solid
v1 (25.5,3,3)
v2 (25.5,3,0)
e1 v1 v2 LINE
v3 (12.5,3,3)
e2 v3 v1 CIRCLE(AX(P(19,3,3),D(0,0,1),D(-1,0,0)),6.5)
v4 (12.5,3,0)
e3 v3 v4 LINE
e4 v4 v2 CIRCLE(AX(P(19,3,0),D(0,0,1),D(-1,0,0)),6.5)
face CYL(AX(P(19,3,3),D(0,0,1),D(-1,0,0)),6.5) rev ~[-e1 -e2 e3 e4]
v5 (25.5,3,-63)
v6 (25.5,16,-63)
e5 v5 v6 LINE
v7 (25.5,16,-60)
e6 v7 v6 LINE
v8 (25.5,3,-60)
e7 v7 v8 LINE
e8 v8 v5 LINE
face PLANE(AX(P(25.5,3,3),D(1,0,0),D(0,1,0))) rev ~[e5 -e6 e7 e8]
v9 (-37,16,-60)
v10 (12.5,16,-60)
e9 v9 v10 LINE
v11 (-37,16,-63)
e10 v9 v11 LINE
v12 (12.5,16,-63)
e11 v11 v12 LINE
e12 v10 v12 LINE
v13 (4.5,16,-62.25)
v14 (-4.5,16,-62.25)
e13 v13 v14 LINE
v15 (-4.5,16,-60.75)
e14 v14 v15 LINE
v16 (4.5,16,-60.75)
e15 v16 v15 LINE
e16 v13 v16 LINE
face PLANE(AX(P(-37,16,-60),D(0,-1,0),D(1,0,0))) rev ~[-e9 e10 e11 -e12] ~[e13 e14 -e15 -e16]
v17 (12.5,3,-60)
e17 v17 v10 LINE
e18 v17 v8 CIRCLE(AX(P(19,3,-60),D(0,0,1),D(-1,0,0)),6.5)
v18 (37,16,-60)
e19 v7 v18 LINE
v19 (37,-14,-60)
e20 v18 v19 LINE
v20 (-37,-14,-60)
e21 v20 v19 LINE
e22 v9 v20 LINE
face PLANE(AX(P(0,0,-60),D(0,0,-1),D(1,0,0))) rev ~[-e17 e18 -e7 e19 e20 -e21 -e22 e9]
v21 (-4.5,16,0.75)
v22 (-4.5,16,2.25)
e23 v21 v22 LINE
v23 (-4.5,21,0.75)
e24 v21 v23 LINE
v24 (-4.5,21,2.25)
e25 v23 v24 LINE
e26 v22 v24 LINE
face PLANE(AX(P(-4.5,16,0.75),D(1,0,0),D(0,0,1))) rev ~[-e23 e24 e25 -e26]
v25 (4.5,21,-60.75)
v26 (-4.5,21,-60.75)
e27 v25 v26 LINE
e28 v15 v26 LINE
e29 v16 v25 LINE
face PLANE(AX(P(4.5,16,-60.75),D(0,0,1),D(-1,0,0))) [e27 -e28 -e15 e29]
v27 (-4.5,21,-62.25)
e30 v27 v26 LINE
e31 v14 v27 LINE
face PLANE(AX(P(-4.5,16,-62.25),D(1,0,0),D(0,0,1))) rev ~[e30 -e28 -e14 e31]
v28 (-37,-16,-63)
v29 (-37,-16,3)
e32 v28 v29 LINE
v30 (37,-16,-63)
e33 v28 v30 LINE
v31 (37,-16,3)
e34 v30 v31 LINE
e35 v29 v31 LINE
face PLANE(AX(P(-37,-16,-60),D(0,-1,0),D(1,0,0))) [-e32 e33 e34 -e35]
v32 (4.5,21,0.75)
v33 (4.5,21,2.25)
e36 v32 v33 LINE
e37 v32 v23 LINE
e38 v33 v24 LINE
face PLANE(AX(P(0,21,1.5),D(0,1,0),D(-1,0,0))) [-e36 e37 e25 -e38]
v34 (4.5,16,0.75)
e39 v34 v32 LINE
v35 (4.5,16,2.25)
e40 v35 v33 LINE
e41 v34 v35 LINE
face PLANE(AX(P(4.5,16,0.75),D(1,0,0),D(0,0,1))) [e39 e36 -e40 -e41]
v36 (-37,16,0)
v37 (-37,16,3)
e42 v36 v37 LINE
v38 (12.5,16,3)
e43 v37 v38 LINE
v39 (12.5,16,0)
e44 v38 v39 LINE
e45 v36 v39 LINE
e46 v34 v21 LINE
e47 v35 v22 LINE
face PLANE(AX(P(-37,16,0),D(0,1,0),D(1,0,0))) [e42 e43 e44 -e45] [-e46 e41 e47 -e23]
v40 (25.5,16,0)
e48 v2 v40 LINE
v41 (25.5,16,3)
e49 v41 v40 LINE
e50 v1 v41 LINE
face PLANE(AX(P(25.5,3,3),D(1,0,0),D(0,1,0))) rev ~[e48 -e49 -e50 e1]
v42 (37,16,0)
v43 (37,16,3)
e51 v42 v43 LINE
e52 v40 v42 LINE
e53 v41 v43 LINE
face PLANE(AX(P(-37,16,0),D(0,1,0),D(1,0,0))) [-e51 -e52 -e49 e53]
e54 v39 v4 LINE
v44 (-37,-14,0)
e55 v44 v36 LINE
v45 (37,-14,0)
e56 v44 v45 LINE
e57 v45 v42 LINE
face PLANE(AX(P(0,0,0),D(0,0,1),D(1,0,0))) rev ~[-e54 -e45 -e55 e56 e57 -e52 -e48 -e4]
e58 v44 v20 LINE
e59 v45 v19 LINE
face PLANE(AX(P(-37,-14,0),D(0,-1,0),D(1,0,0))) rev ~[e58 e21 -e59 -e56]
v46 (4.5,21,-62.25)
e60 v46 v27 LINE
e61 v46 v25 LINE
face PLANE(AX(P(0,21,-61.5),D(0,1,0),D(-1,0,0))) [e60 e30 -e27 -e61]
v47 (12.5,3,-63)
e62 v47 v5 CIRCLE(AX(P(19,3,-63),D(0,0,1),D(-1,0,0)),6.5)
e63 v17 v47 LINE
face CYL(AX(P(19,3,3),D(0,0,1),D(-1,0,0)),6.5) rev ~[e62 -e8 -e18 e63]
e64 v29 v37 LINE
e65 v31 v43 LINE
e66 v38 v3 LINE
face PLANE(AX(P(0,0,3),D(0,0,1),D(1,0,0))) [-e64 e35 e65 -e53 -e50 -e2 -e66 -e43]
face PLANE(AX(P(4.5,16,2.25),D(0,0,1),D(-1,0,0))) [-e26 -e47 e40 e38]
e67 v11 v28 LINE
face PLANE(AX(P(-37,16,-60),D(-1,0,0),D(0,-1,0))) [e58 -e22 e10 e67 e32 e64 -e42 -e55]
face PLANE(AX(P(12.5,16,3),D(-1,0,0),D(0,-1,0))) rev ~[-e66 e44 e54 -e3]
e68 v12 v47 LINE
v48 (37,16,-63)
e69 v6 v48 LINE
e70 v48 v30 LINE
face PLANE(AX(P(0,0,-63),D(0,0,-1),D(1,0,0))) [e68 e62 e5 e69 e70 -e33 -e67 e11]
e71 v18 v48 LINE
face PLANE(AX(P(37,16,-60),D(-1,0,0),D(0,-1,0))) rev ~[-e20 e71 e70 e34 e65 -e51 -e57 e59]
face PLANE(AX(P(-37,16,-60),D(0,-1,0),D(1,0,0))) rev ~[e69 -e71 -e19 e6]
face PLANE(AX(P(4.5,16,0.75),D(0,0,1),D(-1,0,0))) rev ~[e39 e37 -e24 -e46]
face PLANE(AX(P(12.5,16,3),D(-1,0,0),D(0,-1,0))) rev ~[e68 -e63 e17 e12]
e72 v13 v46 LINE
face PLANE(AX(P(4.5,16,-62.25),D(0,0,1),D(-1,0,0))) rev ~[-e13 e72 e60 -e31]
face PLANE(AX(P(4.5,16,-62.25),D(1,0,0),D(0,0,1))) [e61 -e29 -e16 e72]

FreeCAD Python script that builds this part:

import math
import FreeCAD as App
import Part
import Sketcher

V = App.Vector
Q = App.Units.Quantity


def add_polygon(sketch, points):
    """Adds a closed chain of lines whose ends are joined by coincident constraints."""
    first, n = sketch.GeometryCount, len(points)
    for a, b in zip(points, points[1:] + points[:1]):
        sketch.addGeometry(Part.LineSegment(App.Vector(*a, 0), App.Vector(*b, 0)), False)
    for i in range(n):
        sketch.addConstraint(Sketcher.Constraint("Coincident", first + i, 2, first + (i + 1) % n, 1))

doc = App.newDocument("Part")
params = doc.addObject("Spreadsheet::Sheet", "Params")
for row, (alias, value) in enumerate([
    ("sketch1_width", "74 mm"),
    ("sketch1_height", "32 mm"),
    ("pad1_length", "3 mm"),
    ("sketch2_width", "74 mm"),
    ("sketch2_height", "2 mm"),
    ("pad2_length", "60 mm"),
    ("sketch3_width", "74 mm"),
    ("sketch3_height", "32 mm"),
    ("pad3_length", "3 mm"),
    ("sketch4_width", "9 mm"),
    ("sketch4_height", "1.5 mm"),
    ("pad4_length", "5 mm"),
    ("sketch5_width", "9 mm"),
    ("sketch5_height", "1.5 mm"),
    ("pad5_length", "5 mm"),
    ("sketch6_radius", "6.5 mm"),
], start=1):
    params.set(f"A{row}", alias)
    params.set(f"B{row}", "=" + value)
    params.setAlias(f"B{row}", alias)

body = doc.addObject("PartDesign::Body", "Body")

# Sketch on XY plane
sketch1 = body.newObject("Sketcher::SketchObject", "Sketch")
sketch1.AttachmentSupport = (doc.getObject("XY_Plane"), [""])
sketch1.MapMode = "FlatFace"
add_polygon(sketch1, [(-37, 16), (-37, -16), (37, -16), (37, 16)])  # lines 0-3
sketch1.addConstraint([
    Sketcher.Constraint("Vertical", 0),
    Sketcher.Constraint("Horizontal", 1),
    Sketcher.Constraint("Vertical", 2),
    Sketcher.Constraint("Horizontal", 3),
    Sketcher.Constraint("Symmetric", 0, 2, 2, 2, -1, 1),
    Sketcher.Constraint("DistanceX", 1, 1, 1, 2, Q("74 mm")),
    Sketcher.Constraint("DistanceY", 0, 2, 0, 1, Q("32 mm")),
])
sketch1.setExpression("Constraints[9]", "Params.sketch1_width")
sketch1.setExpression("Constraints[10]", "Params.sketch1_height")
pad1 = body.newObject("PartDesign::Pad", "Pad")
pad1.Profile = sketch1
pad1.setExpression("Length", "Params.pad1_length")

# Sketch on XY plane
sketch2 = body.newObject("Sketcher::SketchObject", "Sketch001")
sketch2.AttachmentSupport = (doc.getObject("XY_Plane"), [""])
sketch2.MapMode = "FlatFace"
add_polygon(sketch2, [(-37, -16), (-37, -14), (37, -14), (37, -16)])  # lines 0-3
sketch2.addConstraint([
    Sketcher.Constraint("Vertical", 0),
    Sketcher.Constraint("Horizontal", 1),
    Sketcher.Constraint("Vertical", 2),
    Sketcher.Constraint("Horizontal", 3),
    Sketcher.Constraint("DistanceX", 1, 1, 1, 2, Q("74 mm")),
    Sketcher.Constraint("DistanceY", 0, 1, 0, 2, Q("2 mm")),
    Sketcher.Constraint("DistanceX", 0, 2, -1, 1, Q("37 mm")),
    Sketcher.Constraint("DistanceY", 0, 2, -1, 1, Q("14 mm")),
])
sketch2.setExpression("Constraints[8]", "Params.sketch2_width")
sketch2.setExpression("Constraints[9]", "Params.sketch2_height")
pad2 = body.newObject("PartDesign::Pad", "Pad001")
pad2.Profile = sketch2
pad2.setExpression("Length", "Params.pad2_length")
pad2.Reversed = True

# Sketch on XY plane
sketch3 = body.newObject("Sketcher::SketchObject", "Sketch002")
sketch3.AttachmentSupport = (doc.getObject("XY_Plane"), [""])
sketch3.MapMode = "FlatFace"
sketch3.AttachmentOffset = App.Placement(V(0, 0, -60), App.Rotation())
add_polygon(sketch3, [(-37, -16), (-37, 16), (37, 16), (37, -16)])  # lines 0-3
sketch3.addConstraint([
    Sketcher.Constraint("Vertical", 0),
    Sketcher.Constraint("Horizontal", 1),
    Sketcher.Constraint("Vertical", 2),
    Sketcher.Constraint("Horizontal", 3),
    Sketcher.Constraint("Symmetric", 0, 2, 2, 2, -1, 1),
    Sketcher.Constraint("DistanceX", 1, 1, 1, 2, Q("74 mm")),
    Sketcher.Constraint("DistanceY", 0, 1, 0, 2, Q("32 mm")),
])
sketch3.setExpression("Constraints[9]", "Params.sketch3_width")
sketch3.setExpression("Constraints[10]", "Params.sketch3_height")
pad3 = body.newObject("PartDesign::Pad", "Pad002")
pad3.Profile = sketch3
pad3.setExpression("Length", "Params.pad3_length")
pad3.Reversed = True

# Sketch on XZ plane
sketch4 = body.newObject("Sketcher::SketchObject", "Sketch003")
sketch4.AttachmentSupport = (doc.getObject("XZ_Plane"), [""])
sketch4.MapMode = "FlatFace"
sketch4.AttachmentOffset = App.Placement(V(0, 0, -16), App.Rotation())
add_polygon(sketch4, [(4.5, 2.25), (4.5, 0.75), (-4.5, 0.75), (-4.5, 2.25)])  # lines 0-3
sketch4.addConstraint([
    Sketcher.Constraint("Vertical", 0),
    Sketcher.Constraint("Horizontal", 1),
    Sketcher.Constraint("Vertical", 2),
    Sketcher.Constraint("Horizontal", 3),
    Sketcher.Constraint("DistanceX", 1, 2, 1, 1, Q("9 mm")),
    Sketcher.Constraint("DistanceY", 0, 2, 0, 1, Q("1.5 mm")),
    Sketcher.Constraint("DistanceX", -1, 1, 0, 2, Q("4.5 mm")),
    Sketcher.Constraint("DistanceY", -1, 1, 0, 2, Q("0.75 mm")),
])
sketch4.setExpression("Constraints[8]", "Params.sketch4_width")
sketch4.setExpression("Constraints[9]", "Params.sketch4_height")
pad4 = body.newObject("PartDesign::Pad", "Pad003")
pad4.Profile = sketch4
pad4.setExpression("Length", "Params.pad4_length")
pad4.Reversed = True

# Sketch on XZ plane
sketch5 = body.newObject("Sketcher::SketchObject", "Sketch004")
sketch5.AttachmentSupport = (doc.getObject("XZ_Plane"), [""])
sketch5.MapMode = "FlatFace"
sketch5.AttachmentOffset = App.Placement(V(0, 0, -16), App.Rotation())
add_polygon(sketch5, [(4.5, -60.75), (4.5, -62.25), (-4.5, -62.25), (-4.5, -60.75)])  # lines 0-3
sketch5.addConstraint([
    Sketcher.Constraint("Vertical", 0),
    Sketcher.Constraint("Horizontal", 1),
    Sketcher.Constraint("Vertical", 2),
    Sketcher.Constraint("Horizontal", 3),
    Sketcher.Constraint("DistanceX", 1, 2, 1, 1, Q("9 mm")),
    Sketcher.Constraint("DistanceY", 0, 2, 0, 1, Q("1.5 mm")),
    Sketcher.Constraint("DistanceX", -1, 1, 0, 2, Q("4.5 mm")),
    Sketcher.Constraint("DistanceY", 0, 2, -1, 1, Q("62.25 mm")),
])
sketch5.setExpression("Constraints[8]", "Params.sketch5_width")
sketch5.setExpression("Constraints[9]", "Params.sketch5_height")
pad5 = body.newObject("PartDesign::Pad", "Pad004")
pad5.Profile = sketch5
pad5.setExpression("Length", "Params.pad5_length")
pad5.Reversed = True

# Sketch on XY plane
sketch6 = body.newObject("Sketcher::SketchObject", "Sketch005")
sketch6.AttachmentSupport = (doc.getObject("XY_Plane"), [""])
sketch6.MapMode = "FlatFace"
sketch6.AttachmentOffset = App.Placement(V(0, 0, 3), App.Rotation())
sketch6.addGeometry([
    Part.LineSegment(V(12.5, 16, 0), V(12.5, 3, 0)),
    Part.ArcOfCircle(Part.Circle(V(19, 3, 0), V(0, 0, 1), 6.5), math.radians(180), math.radians(360)),
    Part.LineSegment(V(25.5, 3, 0), V(25.5, 16, 0)),
    Part.LineSegment(V(25.5, 16, 0), V(12.5, 16, 0)),
], False)
sketch6.addConstraint([
    Sketcher.Constraint("Tangent", 0, 2, 1, 1),
    Sketcher.Constraint("Tangent", 1, 2, 2, 1),
    Sketcher.Constraint("Coincident", 2, 2, 3, 1),
    Sketcher.Constraint("Coincident", 3, 2, 0, 1),
    Sketcher.Constraint("Vertical", 0),
    Sketcher.Constraint("Vertical", 2),
    Sketcher.Constraint("Horizontal", 3),
    Sketcher.Constraint("Equal", 3, 0),
    Sketcher.Constraint("Radius", 1, Q("6.5 mm")),
    Sketcher.Constraint("DistanceX", -1, 1, 1, 3, Q("19 mm")),
    Sketcher.Constraint("DistanceY", -1, 1, 1, 3, Q("3 mm")),
])
sketch6.setExpression("Constraints[8]", "Params.sketch6_radius")
pocket1 = body.newObject("PartDesign::Pocket", "Pocket")
pocket1.Profile = sketch6
pocket1.Type = "ThroughAll"

doc.recompute()
